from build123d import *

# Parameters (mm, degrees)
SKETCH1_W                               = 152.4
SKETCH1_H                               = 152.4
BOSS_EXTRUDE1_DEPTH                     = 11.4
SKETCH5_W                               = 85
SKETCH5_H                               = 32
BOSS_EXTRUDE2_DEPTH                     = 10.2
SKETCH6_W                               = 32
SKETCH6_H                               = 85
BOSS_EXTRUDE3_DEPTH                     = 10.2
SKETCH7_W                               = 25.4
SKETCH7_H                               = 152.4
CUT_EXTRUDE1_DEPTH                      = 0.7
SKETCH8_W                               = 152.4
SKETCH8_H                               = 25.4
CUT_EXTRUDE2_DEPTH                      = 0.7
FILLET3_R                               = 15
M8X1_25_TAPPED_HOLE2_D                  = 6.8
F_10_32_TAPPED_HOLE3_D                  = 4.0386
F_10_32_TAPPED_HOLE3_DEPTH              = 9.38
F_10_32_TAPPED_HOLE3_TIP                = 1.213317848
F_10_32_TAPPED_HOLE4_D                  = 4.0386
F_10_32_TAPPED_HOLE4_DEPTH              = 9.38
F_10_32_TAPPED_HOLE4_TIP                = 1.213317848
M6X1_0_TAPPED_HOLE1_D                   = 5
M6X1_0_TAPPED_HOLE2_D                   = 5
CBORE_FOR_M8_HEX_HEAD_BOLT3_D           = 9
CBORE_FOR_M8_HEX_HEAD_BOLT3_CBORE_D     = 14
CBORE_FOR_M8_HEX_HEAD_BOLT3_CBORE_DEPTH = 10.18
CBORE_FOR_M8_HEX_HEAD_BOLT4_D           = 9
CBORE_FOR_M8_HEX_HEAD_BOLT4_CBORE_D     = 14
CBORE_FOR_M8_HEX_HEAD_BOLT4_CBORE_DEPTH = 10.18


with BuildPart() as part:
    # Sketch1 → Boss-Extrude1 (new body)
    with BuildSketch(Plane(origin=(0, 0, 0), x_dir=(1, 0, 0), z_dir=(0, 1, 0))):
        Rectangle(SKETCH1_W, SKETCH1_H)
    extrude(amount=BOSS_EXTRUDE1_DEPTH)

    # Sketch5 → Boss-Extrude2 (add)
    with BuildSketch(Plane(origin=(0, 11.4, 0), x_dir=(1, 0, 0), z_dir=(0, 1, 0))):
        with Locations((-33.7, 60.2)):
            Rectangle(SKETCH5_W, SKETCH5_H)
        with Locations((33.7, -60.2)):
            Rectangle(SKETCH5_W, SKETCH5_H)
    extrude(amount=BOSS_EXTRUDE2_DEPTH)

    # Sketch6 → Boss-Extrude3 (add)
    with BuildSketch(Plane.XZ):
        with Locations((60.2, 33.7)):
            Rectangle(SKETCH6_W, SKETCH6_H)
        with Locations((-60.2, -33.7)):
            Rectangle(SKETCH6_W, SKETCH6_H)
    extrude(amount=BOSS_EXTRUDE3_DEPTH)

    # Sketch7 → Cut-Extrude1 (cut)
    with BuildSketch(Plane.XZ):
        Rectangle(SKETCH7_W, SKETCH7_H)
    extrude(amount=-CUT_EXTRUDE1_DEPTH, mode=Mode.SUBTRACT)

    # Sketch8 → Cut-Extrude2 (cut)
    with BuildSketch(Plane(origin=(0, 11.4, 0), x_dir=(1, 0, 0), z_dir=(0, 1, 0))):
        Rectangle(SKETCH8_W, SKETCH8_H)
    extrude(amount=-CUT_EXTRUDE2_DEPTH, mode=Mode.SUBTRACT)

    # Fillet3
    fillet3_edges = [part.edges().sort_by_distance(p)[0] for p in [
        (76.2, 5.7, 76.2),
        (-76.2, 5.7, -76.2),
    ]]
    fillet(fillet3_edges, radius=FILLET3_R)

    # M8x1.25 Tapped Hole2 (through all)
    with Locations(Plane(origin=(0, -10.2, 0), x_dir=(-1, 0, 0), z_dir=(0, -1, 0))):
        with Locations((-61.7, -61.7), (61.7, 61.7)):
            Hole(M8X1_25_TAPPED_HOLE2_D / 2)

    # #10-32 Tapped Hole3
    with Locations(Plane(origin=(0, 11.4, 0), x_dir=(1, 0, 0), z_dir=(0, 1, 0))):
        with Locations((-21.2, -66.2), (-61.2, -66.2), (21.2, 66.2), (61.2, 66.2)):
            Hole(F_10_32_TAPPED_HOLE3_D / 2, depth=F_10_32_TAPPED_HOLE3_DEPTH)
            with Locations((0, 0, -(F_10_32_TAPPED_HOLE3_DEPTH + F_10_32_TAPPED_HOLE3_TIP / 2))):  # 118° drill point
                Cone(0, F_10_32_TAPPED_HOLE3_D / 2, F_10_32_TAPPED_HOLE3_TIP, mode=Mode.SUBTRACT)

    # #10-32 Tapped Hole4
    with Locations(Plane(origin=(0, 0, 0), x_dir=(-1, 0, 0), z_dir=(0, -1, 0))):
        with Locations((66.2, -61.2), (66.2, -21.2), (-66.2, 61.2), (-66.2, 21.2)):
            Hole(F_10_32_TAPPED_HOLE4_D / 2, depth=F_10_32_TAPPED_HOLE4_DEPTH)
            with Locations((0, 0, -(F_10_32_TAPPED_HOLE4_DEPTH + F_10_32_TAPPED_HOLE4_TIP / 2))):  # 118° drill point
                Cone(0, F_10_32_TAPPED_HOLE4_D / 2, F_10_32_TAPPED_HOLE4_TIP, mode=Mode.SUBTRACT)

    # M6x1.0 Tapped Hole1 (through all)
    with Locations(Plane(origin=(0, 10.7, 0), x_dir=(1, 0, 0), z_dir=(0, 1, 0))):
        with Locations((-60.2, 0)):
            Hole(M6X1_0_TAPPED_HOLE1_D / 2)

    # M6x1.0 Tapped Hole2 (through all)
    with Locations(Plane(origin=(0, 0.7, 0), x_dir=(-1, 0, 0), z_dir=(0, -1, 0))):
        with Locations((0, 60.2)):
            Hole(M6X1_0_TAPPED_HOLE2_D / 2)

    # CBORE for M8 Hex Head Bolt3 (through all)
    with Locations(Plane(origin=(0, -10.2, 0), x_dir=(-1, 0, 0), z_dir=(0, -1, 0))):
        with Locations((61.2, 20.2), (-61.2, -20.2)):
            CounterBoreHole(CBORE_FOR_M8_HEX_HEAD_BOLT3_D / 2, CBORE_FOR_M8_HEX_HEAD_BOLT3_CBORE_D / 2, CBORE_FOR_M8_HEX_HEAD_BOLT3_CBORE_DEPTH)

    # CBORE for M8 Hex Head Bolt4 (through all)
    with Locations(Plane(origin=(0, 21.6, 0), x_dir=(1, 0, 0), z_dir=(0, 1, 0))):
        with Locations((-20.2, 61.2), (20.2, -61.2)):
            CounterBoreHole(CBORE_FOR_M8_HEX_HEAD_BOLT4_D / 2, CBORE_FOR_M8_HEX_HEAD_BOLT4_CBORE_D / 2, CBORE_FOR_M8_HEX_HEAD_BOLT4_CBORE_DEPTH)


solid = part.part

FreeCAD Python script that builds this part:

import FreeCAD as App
import Part
import Sketcher
from FreeCAD import Vector


def edges_at(feature, points):
    """Names of the edges that pass closest to the given points."""
    edges = feature.Shape.Edges
    near = lambda p: min(range(len(edges)), key=lambda i: edges[i].distToShape(Part.Vertex(*p))[0])
    return sorted({f"Edge{near(p) + 1}" for p in points})

doc = App.newDocument("Part")
body = doc.addObject("PartDesign::Body", "Body")

sketch1 = body.newObject("Sketcher::SketchObject", "Sketch")
sketch1.AttachmentSupport = (doc.getObject("XZ_Plane"), [""])
sketch1.MapMode = "FlatFace"
sketch1.addGeometry(Part.LineSegment(Vector(-76, -76, 0), Vector(-76, 76, 0)), False)
sketch1.addGeometry(Part.LineSegment(Vector(-76, 76, 0), Vector(76, 76, 0)), False)
sketch1.addGeometry(Part.LineSegment(Vector(76, 76, 0), Vector(76, -76, 0)), False)
sketch1.addGeometry(Part.LineSegment(Vector(76, -76, 0), Vector(-76, -76, 0)), False)
sketch1.addConstraint(Sketcher.Constraint("Coincident", 0, 2, 1, 1))
sketch1.addConstraint(Sketcher.Constraint("Coincident", 1, 2, 2, 1))
sketch1.addConstraint(Sketcher.Constraint("Coincident", 2, 2, 3, 1))
sketch1.addConstraint(Sketcher.Constraint("Coincident", 3, 2, 0, 1))
sketch1.addConstraint(Sketcher.Constraint("Vertical", 0))
sketch1.addConstraint(Sketcher.Constraint("Horizontal", 1))
sketch1.addConstraint(Sketcher.Constraint("Vertical", 2))
sketch1.addConstraint(Sketcher.Constraint("Horizontal", 3))
sketch1.addConstraint(Sketcher.Constraint("Symmetric", 0, 2, 2, 2, -1, 1))
sketch1.addConstraint(Sketcher.Constraint("Equal", 3, 0))
sketch1.addConstraint(Sketcher.Constraint("DistanceX", 1, 1, 1, 2, 152.4))
pad1 = body.newObject("PartDesign::Pad", "Pad")
pad1.Profile = sketch1
pad1.Length = 11.4
pad1.Reversed = True

sketch2 = body.newObject("Sketcher::SketchObject", "Sketch001")
sketch2.AttachmentSupport = (doc.getObject("XZ_Plane"), [""])
sketch2.MapMode = "FlatFace"
sketch2.AttachmentOffset = App.Placement(Vector(0, 0, -11.4), App.Rotation())
sketch2.addGeometry(Part.LineSegment(Vector(-76, -76, 0), Vector(-76, -44, 0)), False)
sketch2.addGeometry(Part.LineSegment(Vector(-76, -44, 0), Vector(9, -44, 0)), False)
sketch2.addGeometry(Part.LineSegment(Vector(9, -44, 0), Vector(9, -76, 0)), False)
sketch2.addGeometry(Part.LineSegment(Vector(9, -76, 0), Vector(-76, -76, 0)), False)
sketch2.addGeometry(Part.LineSegment(Vector(-9, 44, 0), Vector(-9, 76, 0)), False)
sketch2.addGeometry(Part.LineSegment(Vector(-9, 76, 0), Vector(76, 76, 0)), False)
sketch2.addGeometry(Part.LineSegment(Vector(76, 76, 0), Vector(76, 44, 0)), False)
sketch2.addGeometry(Part.LineSegment(Vector(76, 44, 0), Vector(-9, 44, 0)), False)
sketch2.addConstraint(Sketcher.Constraint("Coincident", 0, 2, 1, 1))
sketch2.addConstraint(Sketcher.Constraint("Coincident", 1, 2, 2, 1))
sketch2.addConstraint(Sketcher.Constraint("Coincident", 2, 2, 3, 1))
sketch2.addConstraint(Sketcher.Constraint("Coincident", 3, 2, 0, 1))
sketch2.addConstraint(Sketcher.Constraint("Coincident", 4, 2, 5, 1))
sketch2.addConstraint(Sketcher.Constraint("Coincident", 5, 2, 6, 1))
sketch2.addConstraint(Sketcher.Constraint("Coincident", 6, 2, 7, 1))
sketch2.addConstraint(Sketcher.Constraint("Coincident", 7, 2, 4, 1))
sketch2.addConstraint(Sketcher.Constraint("Vertical", 0))
sketch2.addConstraint(Sketcher.Constraint("Horizontal", 1))
sketch2.addConstraint(Sketcher.Constraint("Vertical", 2))
sketch2.addConstraint(Sketcher.Constraint("Horizontal", 3))
sketch2.addConstraint(Sketcher.Constraint("Vertical", 4))
sketch2.addConstraint(Sketcher.Constraint("Horizontal", 5))
sketch2.addConstraint(Sketcher.Constraint("Vertical", 6))
sketch2.addConstraint(Sketcher.Constraint("Horizontal", 7))
sketch2.addConstraint(Sketcher.Constraint("Symmetric", 2, 2, 4, 2, -1, 1))
sketch2.addConstraint(Sketcher.Constraint("Symmetric", 0, 2, 6, 2, -1, 1))
sketch2.addConstraint(Sketcher.Constraint("DistanceX", 1, 1, 1, 2, 85.0))
sketch2.addConstraint(Sketcher.Constraint("DistanceY", 0, 1, 0, 2, 32.0))
sketch2.addConstraint(Sketcher.Constraint("DistanceX", 0, 2, -1, 1, 76.2))
sketch2.addConstraint(Sketcher.Constraint("DistanceY", 0, 2, -1, 1, 44.2))
pad2 = body.newObject("PartDesign::Pad", "Pad001")
pad2.Profile = sketch2
pad2.Length = 10.2
pad2.Reversed = True

sketch3 = body.newObject("Sketcher::SketchObject", "Sketch002")
sketch3.AttachmentSupport = (doc.getObject("XZ_Plane"), [""])
sketch3.MapMode = "FlatFace"
sketch3.addGeometry(Part.LineSegment(Vector(44, 76, 0), Vector(44, -9, 0)), False)
sketch3.addGeometry(Part.LineSegment(Vector(44, -9, 0), Vector(76, -9, 0)), False)
sketch3.addGeometry(Part.LineSegment(Vector(76, -9, 0), Vector(76, 76, 0)), False)
sketch3.addGeometry(Part.LineSegment(Vector(76, 76, 0), Vector(44, 76, 0)), False)
sketch3.addGeometry(Part.LineSegment(Vector(-76, 9, 0), Vector(-76, -76, 0)), False)
sketch3.addGeometry(Part.LineSegment(Vector(-76, -76, 0), Vector(-44, -76, 0)), False)
sketch3.addGeometry(Part.LineSegment(Vector(-44, -76, 0), Vector(-44, 9, 0)), False)
sketch3.addGeometry(Part.LineSegment(Vector(-44, 9, 0), Vector(-76, 9, 0)), False)
sketch3.addConstraint(Sketcher.Constraint("Coincident", 0, 2, 1, 1))
sketch3.addConstraint(Sketcher.Constraint("Coincident", 1, 2, 2, 1))
sketch3.addConstraint(Sketcher.Constraint("Coincident", 2, 2, 3, 1))
sketch3.addConstraint(Sketcher.Constraint("Coincident", 3, 2, 0, 1))
sketch3.addConstraint(Sketcher.Constraint("Coincident", 4, 2, 5, 1))
sketch3.addConstraint(Sketcher.Constraint("Coincident", 5, 2, 6, 1))
sketch3.addConstraint(Sketcher.Constraint("Coincident", 6, 2, 7, 1))
sketch3.addConstraint(Sketcher.Constraint("Coincident", 7, 2, 4, 1))
sketch3.addConstraint(Sketcher.Constraint("Vertical", 0))
sketch3.addConstraint(Sketcher.Constraint("Horizontal", 1))
sketch3.addConstraint(Sketcher.Constraint("Vertical", 2))
sketch3.addConstraint(Sketcher.Constraint("Horizontal", 3))
sketch3.addConstraint(Sketcher.Constraint("Vertical", 4))
sketch3.addConstraint(Sketcher.Constraint("Horizontal", 5))
sketch3.addConstraint(Sketcher.Constraint("Vertical", 6))
sketch3.addConstraint(Sketcher.Constraint("Horizontal", 7))
sketch3.addConstraint(Sketcher.Constraint("Symmetric", 2, 2, 4, 2, -1, 1))
sketch3.addConstraint(Sketcher.Constraint("Symmetric", 0, 2, 6, 2, -1, 1))
sketch3.addConstraint(Sketcher.Constraint("DistanceX", 1, 1, 1, 2, 32.0))
sketch3.addConstraint(Sketcher.Constraint("DistanceY", 0, 2, 0, 1, 85.0))
sketch3.addConstraint(Sketcher.Constraint("DistanceX", -1, 1, 0, 2, 44.2))
sketch3.addConstraint(Sketcher.Constraint("DistanceY", 0, 2, -1, 1, 8.8))
pad3 = body.newObject("PartDesign::Pad", "Pad002")
pad3.Profile = sketch3
pad3.Length = 10.2

sketch4 = body.newObject("Sketcher::SketchObject", "Sketch003")
sketch4.AttachmentSupport = (doc.getObject("XZ_Plane"), [""])
sketch4.MapMode = "FlatFace"
sketch4.addGeometry(Part.LineSegment(Vector(-13, 76, 0), Vector(-13, -76, 0)), False)
sketch4.addGeometry(Part.LineSegment(Vector(-13, -76, 0), Vector(13, -76, 0)), False)
sketch4.addGeometry(Part.LineSegment(Vector(13, -76, 0), Vector(13, 76, 0)), False)
sketch4.addGeometry(Part.LineSegment(Vector(13, 76, 0), Vector(-13, 76, 0)), False)
sketch4.addConstraint(Sketcher.Constraint("Coincident", 0, 2, 1, 1))
sketch4.addConstraint(Sketcher.Constraint("Coincident", 1, 2, 2, 1))
sketch4.addConstraint(Sketcher.Constraint("Coincident", 2, 2, 3, 1))
sketch4.addConstraint(Sketcher.Constraint("Coincident", 3, 2, 0, 1))
sketch4.addConstraint(Sketcher.Constraint("Vertical", 0))
sketch4.addConstraint(Sketcher.Constraint("Horizontal", 1))
sketch4.addConstraint(Sketcher.Constraint("Vertical", 2))
sketch4.addConstraint(Sketcher.Constraint("Horizontal", 3))
sketch4.addConstraint(Sketcher.Constraint("Symmetric", 0, 2, 2, 2, -1, 1))
sketch4.addConstraint(Sketcher.Constraint("DistanceX", 1, 1, 1, 2, 25.4))
sketch4.addConstraint(Sketcher.Constraint("DistanceY", 0, 2, 0, 1, 152.4))
pocket1 = body.newObject("PartDesign::Pocket", "Pocket")
pocket1.Profile = sketch4
pocket1.Length = 0.7

sketch5 = body.newObject("Sketcher::SketchObject", "Sketch004")
sketch5.AttachmentSupport = (doc.getObject("XZ_Plane"), [""])
sketch5.MapMode = "FlatFace"
sketch5.AttachmentOffset = App.Placement(Vector(0, 0, -11.4), App.Rotation())
sketch5.addGeometry(Part.LineSegment(Vector(-76, -13, 0), Vector(-76, 13, 0)), False)
sketch5.addGeometry(Part.LineSegment(Vector(-76, 13, 0), Vector(76, 13, 0)), False)
sketch5.addGeometry(Part.LineSegment(Vector(76, 13, 0), Vector(76, -13, 0)), False)
sketch5.addGeometry(Part.LineSegment(Vector(76, -13, 0), Vector(-76, -13, 0)), False)
sketch5.addConstraint(Sketcher.Constraint("Coincident", 0, 2, 1, 1))
sketch5.addConstraint(Sketcher.Constraint("Coincident", 1, 2, 2, 1))
sketch5.addConstraint(Sketcher.Constraint("Coincident", 2, 2, 3, 1))
sketch5.addConstraint(Sketcher.Constraint("Coincident", 3, 2, 0, 1))
sketch5.addConstraint(Sketcher.Constraint("Vertical", 0))
sketch5.addConstraint(Sketcher.Constraint("Horizontal", 1))
sketch5.addConstraint(Sketcher.Constraint("Vertical", 2))
sketch5.addConstraint(Sketcher.Constraint("Horizontal", 3))
sketch5.addConstraint(Sketcher.Constraint("Symmetric", 0, 2, 2, 2, -1, 1))
sketch5.addConstraint(Sketcher.Constraint("DistanceX", 1, 1, 1, 2, 152.4))
sketch5.addConstraint(Sketcher.Constraint("DistanceY", 0, 1, 0, 2, 25.4))
pocket2 = body.newObject("PartDesign::Pocket", "Pocket001")
pocket2.Profile = sketch5
pocket2.Length = 0.7
pocket2.Reversed = True
doc.recompute()

fillet = body.newObject("PartDesign::Fillet", "Fillet")
fillet.Base = (pocket2, edges_at(pocket2, [(76.2, 5.7, 76.2), (-76.2, 5.7, -76.2)]))
fillet.Radius = 15

sketch6 = body.newObject("Sketcher::SketchObject", "Sketch005")
sketch6.AttachmentSupport = (doc.getObject("XZ_Plane"), [""])
sketch6.MapMode = "FlatFace"
sketch6.AttachmentOffset = App.Placement(Vector(0, 0, 10.2), App.Rotation())
sketch6.addGeometry(Part.Circle(Vector(61.7, 61.7, 0), Vector(0, 0, 1), 3.4), False)
sketch6.addGeometry(Part.Circle(Vector(-61.7, -61.7, 0), Vector(0, 0, 1), 3.4), False)
sketch6.addConstraint(Sketcher.Constraint("Equal", 0, 1))
sketch6.addConstraint(Sketcher.Constraint("Symmetric", 0, 3, 1, 3, -1, 1))
sketch6.addConstraint(Sketcher.Constraint("Diameter", 0, 6.8))
sketch6.addConstraint(Sketcher.Constraint("DistanceX", -1, 1, 0, 3, 61.7))
sketch6.addConstraint(Sketcher.Constraint("DistanceY", -1, 1, 0, 3, 61.7))
doc.recompute()
hole = body.newObject("PartDesign::Hole", "Hole")
hole.Profile = sketch6
hole.ThreadType = "None"
hole.Diameter = 6.8
hole.DepthType = "ThroughAll"

sketch7 = body.newObject("Sketcher::SketchObject", "Sketch006")
sketch7.AttachmentSupport = (doc.getObject("XZ_Plane"), [""])
sketch7.MapMode = "FlatFace"
sketch7.AttachmentOffset = App.Placement(Vector(0, 0, -11.4), App.Rotation())
sketch7.addGeometry(Part.Circle(Vector(-21.2, 66.2, 0), Vector(0, 0, 1), 2), False)
sketch7.addGeometry(Part.Circle(Vector(-61.2, 66.2, 0), Vector(0, 0, 1), 2), False)
sketch7.addGeometry(Part.Circle(Vector(21.2, -66.2, 0), Vector(0, 0, 1), 2), False)
sketch7.addGeometry(Part.Circle(Vector(61.2, -66.2, 0), Vector(0, 0, 1), 2), False)
sketch7.addConstraint(Sketcher.Constraint("Equal", 0, 1))
sketch7.addConstraint(Sketcher.Constraint("Equal", 1, 2))
sketch7.addConstraint(Sketcher.Constraint("Equal", 2, 3))
sketch7.addConstraint(Sketcher.Constraint("Symmetric", 0, 3, 2, 3, -1, 1))
sketch7.addConstraint(Sketcher.Constraint("Symmetric", 1, 3, 3, 3, -1, 1))
sketch7.addConstraint(Sketcher.Constraint("Horizontal", 0, 3, 1, 3))
sketch7.addConstraint(Sketcher.Constraint("DistanceX", 1, 3, 0, 3, 40.0))
sketch7.addConstraint(Sketcher.Constraint("Diameter", 0, 4.0386))
sketch7.addConstraint(Sketcher.Constraint("DistanceX", 0, 3, -1, 1, 21.2))
sketch7.addConstraint(Sketcher.Constraint("DistanceY", -1, 1, 0, 3, 66.2))
doc.recompute()
hole2 = body.newObject("PartDesign::Hole", "Hole001")
hole2.Profile = sketch7
hole2.ThreadType = "None"
hole2.Diameter = 4.0386
hole2.DepthType = "Dimension"
hole2.Depth = 9.38
hole2.DrillPoint = "Angled"
hole2.DrillPointAngle = 118
hole2.Reversed = True

sketch8 = body.newObject("Sketcher::SketchObject", "Sketch007")
sketch8.AttachmentSupport = (doc.getObject("XZ_Plane"), [""])
sketch8.MapMode = "FlatFace"
sketch8.addGeometry(Part.Circle(Vector(-66.2, 61.2, 0), Vector(0, 0, 1), 2), False)
sketch8.addGeometry(Part.Circle(Vector(-66.2, 21.2, 0), Vector(0, 0, 1), 2), False)
sketch8.addGeometry(Part.Circle(Vector(66.2, -61.2, 0), Vector(0, 0, 1), 2), False)
sketch8.addGeometry(Part.Circle(Vector(66.2, -21.2, 0), Vector(0, 0, 1), 2), False)
sketch8.addConstraint(Sketcher.Constraint("Equal", 0, 1))
sketch8.addConstraint(Sketcher.Constraint("Equal", 1, 2))
sketch8.addConstraint(Sketcher.Constraint("Equal", 2, 3))
sketch8.addConstraint(Sketcher.Constraint("Symmetric", 0, 3, 2, 3, -1, 1))
sketch8.addConstraint(Sketcher.Constraint("Symmetric", 1, 3, 3, 3, -1, 1))
sketch8.addConstraint(Sketcher.Constraint("Vertical", 0, 3, 1, 3))
sketch8.addConstraint(Sketcher.Constraint("DistanceY", 1, 3, 0, 3, 40.0))
sketch8.addConstraint(Sketcher.Constraint("Diameter", 0, 4.0386))
sketch8.addConstraint(Sketcher.Constraint("DistanceX", 0, 3, -1, 1, 66.2))
sketch8.addConstraint(Sketcher.Constraint("DistanceY", -1, 1, 0, 3, 61.2))
doc.recompute()
hole3 = body.newObject("PartDesign::Hole", "Hole002")
hole3.Profile = sketch8
hole3.ThreadType = "None"
hole3.Diameter = 4.0386
hole3.DepthType = "Dimension"
hole3.Depth = 9.38
hole3.DrillPoint = "Angled"
hole3.DrillPointAngle = 118

sketch9 = body.newObject("Sketcher::SketchObject", "Sketch008")
sketch9.AttachmentSupport = (doc.getObject("XZ_Plane"), [""])
sketch9.MapMode = "FlatFace"
sketch9.AttachmentOffset = App.Placement(Vector(0, 0, -10.7), App.Rotation())
sketch9.addGeometry(Part.Circle(Vector(-60.2, 0, 0), Vector(0, 0, 1), 2.5), False)
sketch9.addConstraint(Sketcher.Constraint("PointOnObject", 0, 3, -1))
sketch9.addConstraint(Sketcher.Constraint("Diameter", 0, 5.0))
sketch9.addConstraint(Sketcher.Constraint("DistanceX", 0, 3, -1, 1, 60.2))
doc.recompute()
hole4 = body.newObject("PartDesign::Hole", "Hole003")
hole4.Profile = sketch9
hole4.ThreadType = "None"
hole4.Diameter = 5
hole4.DepthType = "ThroughAll"
hole4.Reversed = True

sketch10 = body.newObject("Sketcher::SketchObject", "Sketch009")
sketch10.AttachmentSupport = (doc.getObject("XZ_Plane"), [""])
sketch10.MapMode = "FlatFace"
sketch10.AttachmentOffset = App.Placement(Vector(0, 0, -0.7), App.Rotation())
sketch10.addGeometry(Part.Circle(Vector(0, -60.2, 0), Vector(0, 0, 1), 2.5), False)
sketch10.addConstraint(Sketcher.Constraint("PointOnObject", 0, 3, -2))
sketch10.addConstraint(Sketcher.Constraint("Diameter", 0, 5.0))
sketch10.addConstraint(Sketcher.Constraint("DistanceY", 0, 3, -1, 1, 60.2))
doc.recompute()
hole5 = body.newObject("PartDesign::Hole", "Hole004")
hole5.Profile = sketch10
hole5.ThreadType = "None"
hole5.Diameter = 5
hole5.DepthType = "ThroughAll"

sketch11 = body.newObject("Sketcher::SketchObject", "Sketch010")
sketch11.AttachmentSupport = (doc.getObject("XZ_Plane"), [""])
sketch11.MapMode = "FlatFace"
sketch11.AttachmentOffset = App.Placement(Vector(0, 0, 10.2), App.Rotation())
sketch11.addGeometry(Part.Circle(Vector(-61.2, -20.2, 0), Vector(0, 0, 1), 4.5), False)
sketch11.addGeometry(Part.Circle(Vector(61.2, 20.2, 0), Vector(0, 0, 1), 4.5), False)
sketch11.addConstraint(Sketcher.Constraint("Equal", 0, 1))
sketch11.addConstraint(Sketcher.Constraint("Symmetric", 0, 3, 1, 3, -1, 1))
sketch11.addConstraint(Sketcher.Constraint("Diameter", 0, 9.0))
sketch11.addConstraint(Sketcher.Constraint("DistanceX", 0, 3, -1, 1, 61.2))
sketch11.addConstraint(Sketcher.Constraint("DistanceY", 0, 3, -1, 1, 20.2))
doc.recompute()
hole6 = body.newObject("PartDesign::Hole", "Hole005")
hole6.Profile = sketch11
hole6.ThreadType = "None"
hole6.Diameter = 9
hole6.DepthType = "ThroughAll"
hole6.HoleCutType = "Counterbore"
hole6.HoleCutDiameter = 14
hole6.HoleCutDepth = 10.18

sketch12 = body.newObject("Sketcher::SketchObject", "Sketch011")
sketch12.AttachmentSupport = (doc.getObject("XZ_Plane"), [""])
sketch12.MapMode = "FlatFace"
sketch12.AttachmentOffset = App.Placement(Vector(0, 0, -21.6), App.Rotation())
sketch12.addGeometry(Part.Circle(Vector(-20.2, -61.2, 0), Vector(0, 0, 1), 4.5), False)
sketch12.addGeometry(Part.Circle(Vector(20.2, 61.2, 0), Vector(0, 0, 1), 4.5), False)
sketch12.addConstraint(Sketcher.Constraint("Equal", 0, 1))
sketch12.addConstraint(Sketcher.Constraint("Symmetric", 0, 3, 1, 3, -1, 1))
sketch12.addConstraint(Sketcher.Constraint("Diameter", 0, 9.0))
sketch12.addConstraint(Sketcher.Constraint("DistanceX", 0, 3, -1, 1, 20.2))
sketch12.addConstraint(Sketcher.Constraint("DistanceY", 0, 3, -1, 1, 61.2))
doc.recompute()
hole7 = body.newObject("PartDesign::Hole", "Hole006")
hole7.Profile = sketch12
hole7.ThreadType = "None"
hole7.Diameter = 9
hole7.DepthType = "ThroughAll"
hole7.HoleCutType = "Counterbore"
hole7.HoleCutDiameter = 14
hole7.HoleCutDepth = 10.18
hole7.Reversed = True

doc.recompute()
